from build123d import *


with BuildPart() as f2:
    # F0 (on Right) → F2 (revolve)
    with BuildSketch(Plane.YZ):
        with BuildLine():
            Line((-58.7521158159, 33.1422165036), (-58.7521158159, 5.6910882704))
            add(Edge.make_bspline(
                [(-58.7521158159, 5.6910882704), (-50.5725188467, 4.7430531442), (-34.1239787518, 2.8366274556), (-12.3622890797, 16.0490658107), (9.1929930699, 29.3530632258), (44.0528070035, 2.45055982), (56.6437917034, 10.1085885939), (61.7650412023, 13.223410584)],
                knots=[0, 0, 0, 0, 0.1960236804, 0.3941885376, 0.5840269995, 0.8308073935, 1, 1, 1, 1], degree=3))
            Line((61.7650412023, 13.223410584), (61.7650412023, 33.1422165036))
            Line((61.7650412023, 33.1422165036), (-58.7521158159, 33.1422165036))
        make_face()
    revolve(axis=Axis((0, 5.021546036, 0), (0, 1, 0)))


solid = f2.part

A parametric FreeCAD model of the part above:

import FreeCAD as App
import Part
import Sketcher

doc = App.newDocument("Part")
body = doc.addObject("PartDesign::Body", "Body")

# Sketch on YZ plane
sketch1 = body.newObject("Sketcher::SketchObject", "Sketch")
sketch1.AttachmentSupport = (doc.getObject("YZ_Plane"), [""])
sketch1.MapMode = "FlatFace"
sketch1.addGeometry([
    Part.LineSegment(App.Vector(-58.752116, 33.142217, 0), App.Vector(-58.752116, 5.691088, 0)),
    Part.BSplineCurve([App.Vector(-58.752116, 5.691088, 0), App.Vector(-50.572519, 4.743053, 0), App.Vector(-34.123979, 2.836627, 0), App.Vector(-12.362289, 16.049066, 0), App.Vector(9.192993, 29.353063, 0), App.Vector(44.052807, 2.45056, 0), App.Vector(56.643792, 10.108589, 0), App.Vector(61.765041, 13.223411, 0)], [4, 1, 1, 1, 1, 4], [0, 0.19602368, 0.394188538, 0.584027, 0.830807393, 1], False, 3, [1, 1, 1, 1, 1, 1, 1, 1], False),
    Part.LineSegment(App.Vector(61.765041, 13.223411, 0), App.Vector(61.765041, 33.142217, 0)),
    Part.LineSegment(App.Vector(61.765041, 33.142217, 0), App.Vector(-58.752116, 33.142217, 0)),
], False)
sketch1.addConstraint([
    Sketcher.Constraint("Block", 1),
    Sketcher.Constraint("Coincident", 0, 2, 1, 1),
    Sketcher.Constraint("Coincident", 1, 2, 2, 1),
    Sketcher.Constraint("Coincident", 2, 2, 3, 1),
    Sketcher.Constraint("Coincident", 3, 2, 0, 1),
    Sketcher.Constraint("Vertical", 0),
    Sketcher.Constraint("Vertical", 2),
    Sketcher.Constraint("Horizontal", 3),
    Sketcher.Constraint("DistanceY", 0, 2, 0, 1, 27.451128),
])
revolution = body.newObject("PartDesign::Revolution", "Revolution")
revolution.Profile = sketch1
revolution.ReferenceAxis = (sketch1, ["H_Axis"])
revolution.Angle = 360

doc.recompute()
